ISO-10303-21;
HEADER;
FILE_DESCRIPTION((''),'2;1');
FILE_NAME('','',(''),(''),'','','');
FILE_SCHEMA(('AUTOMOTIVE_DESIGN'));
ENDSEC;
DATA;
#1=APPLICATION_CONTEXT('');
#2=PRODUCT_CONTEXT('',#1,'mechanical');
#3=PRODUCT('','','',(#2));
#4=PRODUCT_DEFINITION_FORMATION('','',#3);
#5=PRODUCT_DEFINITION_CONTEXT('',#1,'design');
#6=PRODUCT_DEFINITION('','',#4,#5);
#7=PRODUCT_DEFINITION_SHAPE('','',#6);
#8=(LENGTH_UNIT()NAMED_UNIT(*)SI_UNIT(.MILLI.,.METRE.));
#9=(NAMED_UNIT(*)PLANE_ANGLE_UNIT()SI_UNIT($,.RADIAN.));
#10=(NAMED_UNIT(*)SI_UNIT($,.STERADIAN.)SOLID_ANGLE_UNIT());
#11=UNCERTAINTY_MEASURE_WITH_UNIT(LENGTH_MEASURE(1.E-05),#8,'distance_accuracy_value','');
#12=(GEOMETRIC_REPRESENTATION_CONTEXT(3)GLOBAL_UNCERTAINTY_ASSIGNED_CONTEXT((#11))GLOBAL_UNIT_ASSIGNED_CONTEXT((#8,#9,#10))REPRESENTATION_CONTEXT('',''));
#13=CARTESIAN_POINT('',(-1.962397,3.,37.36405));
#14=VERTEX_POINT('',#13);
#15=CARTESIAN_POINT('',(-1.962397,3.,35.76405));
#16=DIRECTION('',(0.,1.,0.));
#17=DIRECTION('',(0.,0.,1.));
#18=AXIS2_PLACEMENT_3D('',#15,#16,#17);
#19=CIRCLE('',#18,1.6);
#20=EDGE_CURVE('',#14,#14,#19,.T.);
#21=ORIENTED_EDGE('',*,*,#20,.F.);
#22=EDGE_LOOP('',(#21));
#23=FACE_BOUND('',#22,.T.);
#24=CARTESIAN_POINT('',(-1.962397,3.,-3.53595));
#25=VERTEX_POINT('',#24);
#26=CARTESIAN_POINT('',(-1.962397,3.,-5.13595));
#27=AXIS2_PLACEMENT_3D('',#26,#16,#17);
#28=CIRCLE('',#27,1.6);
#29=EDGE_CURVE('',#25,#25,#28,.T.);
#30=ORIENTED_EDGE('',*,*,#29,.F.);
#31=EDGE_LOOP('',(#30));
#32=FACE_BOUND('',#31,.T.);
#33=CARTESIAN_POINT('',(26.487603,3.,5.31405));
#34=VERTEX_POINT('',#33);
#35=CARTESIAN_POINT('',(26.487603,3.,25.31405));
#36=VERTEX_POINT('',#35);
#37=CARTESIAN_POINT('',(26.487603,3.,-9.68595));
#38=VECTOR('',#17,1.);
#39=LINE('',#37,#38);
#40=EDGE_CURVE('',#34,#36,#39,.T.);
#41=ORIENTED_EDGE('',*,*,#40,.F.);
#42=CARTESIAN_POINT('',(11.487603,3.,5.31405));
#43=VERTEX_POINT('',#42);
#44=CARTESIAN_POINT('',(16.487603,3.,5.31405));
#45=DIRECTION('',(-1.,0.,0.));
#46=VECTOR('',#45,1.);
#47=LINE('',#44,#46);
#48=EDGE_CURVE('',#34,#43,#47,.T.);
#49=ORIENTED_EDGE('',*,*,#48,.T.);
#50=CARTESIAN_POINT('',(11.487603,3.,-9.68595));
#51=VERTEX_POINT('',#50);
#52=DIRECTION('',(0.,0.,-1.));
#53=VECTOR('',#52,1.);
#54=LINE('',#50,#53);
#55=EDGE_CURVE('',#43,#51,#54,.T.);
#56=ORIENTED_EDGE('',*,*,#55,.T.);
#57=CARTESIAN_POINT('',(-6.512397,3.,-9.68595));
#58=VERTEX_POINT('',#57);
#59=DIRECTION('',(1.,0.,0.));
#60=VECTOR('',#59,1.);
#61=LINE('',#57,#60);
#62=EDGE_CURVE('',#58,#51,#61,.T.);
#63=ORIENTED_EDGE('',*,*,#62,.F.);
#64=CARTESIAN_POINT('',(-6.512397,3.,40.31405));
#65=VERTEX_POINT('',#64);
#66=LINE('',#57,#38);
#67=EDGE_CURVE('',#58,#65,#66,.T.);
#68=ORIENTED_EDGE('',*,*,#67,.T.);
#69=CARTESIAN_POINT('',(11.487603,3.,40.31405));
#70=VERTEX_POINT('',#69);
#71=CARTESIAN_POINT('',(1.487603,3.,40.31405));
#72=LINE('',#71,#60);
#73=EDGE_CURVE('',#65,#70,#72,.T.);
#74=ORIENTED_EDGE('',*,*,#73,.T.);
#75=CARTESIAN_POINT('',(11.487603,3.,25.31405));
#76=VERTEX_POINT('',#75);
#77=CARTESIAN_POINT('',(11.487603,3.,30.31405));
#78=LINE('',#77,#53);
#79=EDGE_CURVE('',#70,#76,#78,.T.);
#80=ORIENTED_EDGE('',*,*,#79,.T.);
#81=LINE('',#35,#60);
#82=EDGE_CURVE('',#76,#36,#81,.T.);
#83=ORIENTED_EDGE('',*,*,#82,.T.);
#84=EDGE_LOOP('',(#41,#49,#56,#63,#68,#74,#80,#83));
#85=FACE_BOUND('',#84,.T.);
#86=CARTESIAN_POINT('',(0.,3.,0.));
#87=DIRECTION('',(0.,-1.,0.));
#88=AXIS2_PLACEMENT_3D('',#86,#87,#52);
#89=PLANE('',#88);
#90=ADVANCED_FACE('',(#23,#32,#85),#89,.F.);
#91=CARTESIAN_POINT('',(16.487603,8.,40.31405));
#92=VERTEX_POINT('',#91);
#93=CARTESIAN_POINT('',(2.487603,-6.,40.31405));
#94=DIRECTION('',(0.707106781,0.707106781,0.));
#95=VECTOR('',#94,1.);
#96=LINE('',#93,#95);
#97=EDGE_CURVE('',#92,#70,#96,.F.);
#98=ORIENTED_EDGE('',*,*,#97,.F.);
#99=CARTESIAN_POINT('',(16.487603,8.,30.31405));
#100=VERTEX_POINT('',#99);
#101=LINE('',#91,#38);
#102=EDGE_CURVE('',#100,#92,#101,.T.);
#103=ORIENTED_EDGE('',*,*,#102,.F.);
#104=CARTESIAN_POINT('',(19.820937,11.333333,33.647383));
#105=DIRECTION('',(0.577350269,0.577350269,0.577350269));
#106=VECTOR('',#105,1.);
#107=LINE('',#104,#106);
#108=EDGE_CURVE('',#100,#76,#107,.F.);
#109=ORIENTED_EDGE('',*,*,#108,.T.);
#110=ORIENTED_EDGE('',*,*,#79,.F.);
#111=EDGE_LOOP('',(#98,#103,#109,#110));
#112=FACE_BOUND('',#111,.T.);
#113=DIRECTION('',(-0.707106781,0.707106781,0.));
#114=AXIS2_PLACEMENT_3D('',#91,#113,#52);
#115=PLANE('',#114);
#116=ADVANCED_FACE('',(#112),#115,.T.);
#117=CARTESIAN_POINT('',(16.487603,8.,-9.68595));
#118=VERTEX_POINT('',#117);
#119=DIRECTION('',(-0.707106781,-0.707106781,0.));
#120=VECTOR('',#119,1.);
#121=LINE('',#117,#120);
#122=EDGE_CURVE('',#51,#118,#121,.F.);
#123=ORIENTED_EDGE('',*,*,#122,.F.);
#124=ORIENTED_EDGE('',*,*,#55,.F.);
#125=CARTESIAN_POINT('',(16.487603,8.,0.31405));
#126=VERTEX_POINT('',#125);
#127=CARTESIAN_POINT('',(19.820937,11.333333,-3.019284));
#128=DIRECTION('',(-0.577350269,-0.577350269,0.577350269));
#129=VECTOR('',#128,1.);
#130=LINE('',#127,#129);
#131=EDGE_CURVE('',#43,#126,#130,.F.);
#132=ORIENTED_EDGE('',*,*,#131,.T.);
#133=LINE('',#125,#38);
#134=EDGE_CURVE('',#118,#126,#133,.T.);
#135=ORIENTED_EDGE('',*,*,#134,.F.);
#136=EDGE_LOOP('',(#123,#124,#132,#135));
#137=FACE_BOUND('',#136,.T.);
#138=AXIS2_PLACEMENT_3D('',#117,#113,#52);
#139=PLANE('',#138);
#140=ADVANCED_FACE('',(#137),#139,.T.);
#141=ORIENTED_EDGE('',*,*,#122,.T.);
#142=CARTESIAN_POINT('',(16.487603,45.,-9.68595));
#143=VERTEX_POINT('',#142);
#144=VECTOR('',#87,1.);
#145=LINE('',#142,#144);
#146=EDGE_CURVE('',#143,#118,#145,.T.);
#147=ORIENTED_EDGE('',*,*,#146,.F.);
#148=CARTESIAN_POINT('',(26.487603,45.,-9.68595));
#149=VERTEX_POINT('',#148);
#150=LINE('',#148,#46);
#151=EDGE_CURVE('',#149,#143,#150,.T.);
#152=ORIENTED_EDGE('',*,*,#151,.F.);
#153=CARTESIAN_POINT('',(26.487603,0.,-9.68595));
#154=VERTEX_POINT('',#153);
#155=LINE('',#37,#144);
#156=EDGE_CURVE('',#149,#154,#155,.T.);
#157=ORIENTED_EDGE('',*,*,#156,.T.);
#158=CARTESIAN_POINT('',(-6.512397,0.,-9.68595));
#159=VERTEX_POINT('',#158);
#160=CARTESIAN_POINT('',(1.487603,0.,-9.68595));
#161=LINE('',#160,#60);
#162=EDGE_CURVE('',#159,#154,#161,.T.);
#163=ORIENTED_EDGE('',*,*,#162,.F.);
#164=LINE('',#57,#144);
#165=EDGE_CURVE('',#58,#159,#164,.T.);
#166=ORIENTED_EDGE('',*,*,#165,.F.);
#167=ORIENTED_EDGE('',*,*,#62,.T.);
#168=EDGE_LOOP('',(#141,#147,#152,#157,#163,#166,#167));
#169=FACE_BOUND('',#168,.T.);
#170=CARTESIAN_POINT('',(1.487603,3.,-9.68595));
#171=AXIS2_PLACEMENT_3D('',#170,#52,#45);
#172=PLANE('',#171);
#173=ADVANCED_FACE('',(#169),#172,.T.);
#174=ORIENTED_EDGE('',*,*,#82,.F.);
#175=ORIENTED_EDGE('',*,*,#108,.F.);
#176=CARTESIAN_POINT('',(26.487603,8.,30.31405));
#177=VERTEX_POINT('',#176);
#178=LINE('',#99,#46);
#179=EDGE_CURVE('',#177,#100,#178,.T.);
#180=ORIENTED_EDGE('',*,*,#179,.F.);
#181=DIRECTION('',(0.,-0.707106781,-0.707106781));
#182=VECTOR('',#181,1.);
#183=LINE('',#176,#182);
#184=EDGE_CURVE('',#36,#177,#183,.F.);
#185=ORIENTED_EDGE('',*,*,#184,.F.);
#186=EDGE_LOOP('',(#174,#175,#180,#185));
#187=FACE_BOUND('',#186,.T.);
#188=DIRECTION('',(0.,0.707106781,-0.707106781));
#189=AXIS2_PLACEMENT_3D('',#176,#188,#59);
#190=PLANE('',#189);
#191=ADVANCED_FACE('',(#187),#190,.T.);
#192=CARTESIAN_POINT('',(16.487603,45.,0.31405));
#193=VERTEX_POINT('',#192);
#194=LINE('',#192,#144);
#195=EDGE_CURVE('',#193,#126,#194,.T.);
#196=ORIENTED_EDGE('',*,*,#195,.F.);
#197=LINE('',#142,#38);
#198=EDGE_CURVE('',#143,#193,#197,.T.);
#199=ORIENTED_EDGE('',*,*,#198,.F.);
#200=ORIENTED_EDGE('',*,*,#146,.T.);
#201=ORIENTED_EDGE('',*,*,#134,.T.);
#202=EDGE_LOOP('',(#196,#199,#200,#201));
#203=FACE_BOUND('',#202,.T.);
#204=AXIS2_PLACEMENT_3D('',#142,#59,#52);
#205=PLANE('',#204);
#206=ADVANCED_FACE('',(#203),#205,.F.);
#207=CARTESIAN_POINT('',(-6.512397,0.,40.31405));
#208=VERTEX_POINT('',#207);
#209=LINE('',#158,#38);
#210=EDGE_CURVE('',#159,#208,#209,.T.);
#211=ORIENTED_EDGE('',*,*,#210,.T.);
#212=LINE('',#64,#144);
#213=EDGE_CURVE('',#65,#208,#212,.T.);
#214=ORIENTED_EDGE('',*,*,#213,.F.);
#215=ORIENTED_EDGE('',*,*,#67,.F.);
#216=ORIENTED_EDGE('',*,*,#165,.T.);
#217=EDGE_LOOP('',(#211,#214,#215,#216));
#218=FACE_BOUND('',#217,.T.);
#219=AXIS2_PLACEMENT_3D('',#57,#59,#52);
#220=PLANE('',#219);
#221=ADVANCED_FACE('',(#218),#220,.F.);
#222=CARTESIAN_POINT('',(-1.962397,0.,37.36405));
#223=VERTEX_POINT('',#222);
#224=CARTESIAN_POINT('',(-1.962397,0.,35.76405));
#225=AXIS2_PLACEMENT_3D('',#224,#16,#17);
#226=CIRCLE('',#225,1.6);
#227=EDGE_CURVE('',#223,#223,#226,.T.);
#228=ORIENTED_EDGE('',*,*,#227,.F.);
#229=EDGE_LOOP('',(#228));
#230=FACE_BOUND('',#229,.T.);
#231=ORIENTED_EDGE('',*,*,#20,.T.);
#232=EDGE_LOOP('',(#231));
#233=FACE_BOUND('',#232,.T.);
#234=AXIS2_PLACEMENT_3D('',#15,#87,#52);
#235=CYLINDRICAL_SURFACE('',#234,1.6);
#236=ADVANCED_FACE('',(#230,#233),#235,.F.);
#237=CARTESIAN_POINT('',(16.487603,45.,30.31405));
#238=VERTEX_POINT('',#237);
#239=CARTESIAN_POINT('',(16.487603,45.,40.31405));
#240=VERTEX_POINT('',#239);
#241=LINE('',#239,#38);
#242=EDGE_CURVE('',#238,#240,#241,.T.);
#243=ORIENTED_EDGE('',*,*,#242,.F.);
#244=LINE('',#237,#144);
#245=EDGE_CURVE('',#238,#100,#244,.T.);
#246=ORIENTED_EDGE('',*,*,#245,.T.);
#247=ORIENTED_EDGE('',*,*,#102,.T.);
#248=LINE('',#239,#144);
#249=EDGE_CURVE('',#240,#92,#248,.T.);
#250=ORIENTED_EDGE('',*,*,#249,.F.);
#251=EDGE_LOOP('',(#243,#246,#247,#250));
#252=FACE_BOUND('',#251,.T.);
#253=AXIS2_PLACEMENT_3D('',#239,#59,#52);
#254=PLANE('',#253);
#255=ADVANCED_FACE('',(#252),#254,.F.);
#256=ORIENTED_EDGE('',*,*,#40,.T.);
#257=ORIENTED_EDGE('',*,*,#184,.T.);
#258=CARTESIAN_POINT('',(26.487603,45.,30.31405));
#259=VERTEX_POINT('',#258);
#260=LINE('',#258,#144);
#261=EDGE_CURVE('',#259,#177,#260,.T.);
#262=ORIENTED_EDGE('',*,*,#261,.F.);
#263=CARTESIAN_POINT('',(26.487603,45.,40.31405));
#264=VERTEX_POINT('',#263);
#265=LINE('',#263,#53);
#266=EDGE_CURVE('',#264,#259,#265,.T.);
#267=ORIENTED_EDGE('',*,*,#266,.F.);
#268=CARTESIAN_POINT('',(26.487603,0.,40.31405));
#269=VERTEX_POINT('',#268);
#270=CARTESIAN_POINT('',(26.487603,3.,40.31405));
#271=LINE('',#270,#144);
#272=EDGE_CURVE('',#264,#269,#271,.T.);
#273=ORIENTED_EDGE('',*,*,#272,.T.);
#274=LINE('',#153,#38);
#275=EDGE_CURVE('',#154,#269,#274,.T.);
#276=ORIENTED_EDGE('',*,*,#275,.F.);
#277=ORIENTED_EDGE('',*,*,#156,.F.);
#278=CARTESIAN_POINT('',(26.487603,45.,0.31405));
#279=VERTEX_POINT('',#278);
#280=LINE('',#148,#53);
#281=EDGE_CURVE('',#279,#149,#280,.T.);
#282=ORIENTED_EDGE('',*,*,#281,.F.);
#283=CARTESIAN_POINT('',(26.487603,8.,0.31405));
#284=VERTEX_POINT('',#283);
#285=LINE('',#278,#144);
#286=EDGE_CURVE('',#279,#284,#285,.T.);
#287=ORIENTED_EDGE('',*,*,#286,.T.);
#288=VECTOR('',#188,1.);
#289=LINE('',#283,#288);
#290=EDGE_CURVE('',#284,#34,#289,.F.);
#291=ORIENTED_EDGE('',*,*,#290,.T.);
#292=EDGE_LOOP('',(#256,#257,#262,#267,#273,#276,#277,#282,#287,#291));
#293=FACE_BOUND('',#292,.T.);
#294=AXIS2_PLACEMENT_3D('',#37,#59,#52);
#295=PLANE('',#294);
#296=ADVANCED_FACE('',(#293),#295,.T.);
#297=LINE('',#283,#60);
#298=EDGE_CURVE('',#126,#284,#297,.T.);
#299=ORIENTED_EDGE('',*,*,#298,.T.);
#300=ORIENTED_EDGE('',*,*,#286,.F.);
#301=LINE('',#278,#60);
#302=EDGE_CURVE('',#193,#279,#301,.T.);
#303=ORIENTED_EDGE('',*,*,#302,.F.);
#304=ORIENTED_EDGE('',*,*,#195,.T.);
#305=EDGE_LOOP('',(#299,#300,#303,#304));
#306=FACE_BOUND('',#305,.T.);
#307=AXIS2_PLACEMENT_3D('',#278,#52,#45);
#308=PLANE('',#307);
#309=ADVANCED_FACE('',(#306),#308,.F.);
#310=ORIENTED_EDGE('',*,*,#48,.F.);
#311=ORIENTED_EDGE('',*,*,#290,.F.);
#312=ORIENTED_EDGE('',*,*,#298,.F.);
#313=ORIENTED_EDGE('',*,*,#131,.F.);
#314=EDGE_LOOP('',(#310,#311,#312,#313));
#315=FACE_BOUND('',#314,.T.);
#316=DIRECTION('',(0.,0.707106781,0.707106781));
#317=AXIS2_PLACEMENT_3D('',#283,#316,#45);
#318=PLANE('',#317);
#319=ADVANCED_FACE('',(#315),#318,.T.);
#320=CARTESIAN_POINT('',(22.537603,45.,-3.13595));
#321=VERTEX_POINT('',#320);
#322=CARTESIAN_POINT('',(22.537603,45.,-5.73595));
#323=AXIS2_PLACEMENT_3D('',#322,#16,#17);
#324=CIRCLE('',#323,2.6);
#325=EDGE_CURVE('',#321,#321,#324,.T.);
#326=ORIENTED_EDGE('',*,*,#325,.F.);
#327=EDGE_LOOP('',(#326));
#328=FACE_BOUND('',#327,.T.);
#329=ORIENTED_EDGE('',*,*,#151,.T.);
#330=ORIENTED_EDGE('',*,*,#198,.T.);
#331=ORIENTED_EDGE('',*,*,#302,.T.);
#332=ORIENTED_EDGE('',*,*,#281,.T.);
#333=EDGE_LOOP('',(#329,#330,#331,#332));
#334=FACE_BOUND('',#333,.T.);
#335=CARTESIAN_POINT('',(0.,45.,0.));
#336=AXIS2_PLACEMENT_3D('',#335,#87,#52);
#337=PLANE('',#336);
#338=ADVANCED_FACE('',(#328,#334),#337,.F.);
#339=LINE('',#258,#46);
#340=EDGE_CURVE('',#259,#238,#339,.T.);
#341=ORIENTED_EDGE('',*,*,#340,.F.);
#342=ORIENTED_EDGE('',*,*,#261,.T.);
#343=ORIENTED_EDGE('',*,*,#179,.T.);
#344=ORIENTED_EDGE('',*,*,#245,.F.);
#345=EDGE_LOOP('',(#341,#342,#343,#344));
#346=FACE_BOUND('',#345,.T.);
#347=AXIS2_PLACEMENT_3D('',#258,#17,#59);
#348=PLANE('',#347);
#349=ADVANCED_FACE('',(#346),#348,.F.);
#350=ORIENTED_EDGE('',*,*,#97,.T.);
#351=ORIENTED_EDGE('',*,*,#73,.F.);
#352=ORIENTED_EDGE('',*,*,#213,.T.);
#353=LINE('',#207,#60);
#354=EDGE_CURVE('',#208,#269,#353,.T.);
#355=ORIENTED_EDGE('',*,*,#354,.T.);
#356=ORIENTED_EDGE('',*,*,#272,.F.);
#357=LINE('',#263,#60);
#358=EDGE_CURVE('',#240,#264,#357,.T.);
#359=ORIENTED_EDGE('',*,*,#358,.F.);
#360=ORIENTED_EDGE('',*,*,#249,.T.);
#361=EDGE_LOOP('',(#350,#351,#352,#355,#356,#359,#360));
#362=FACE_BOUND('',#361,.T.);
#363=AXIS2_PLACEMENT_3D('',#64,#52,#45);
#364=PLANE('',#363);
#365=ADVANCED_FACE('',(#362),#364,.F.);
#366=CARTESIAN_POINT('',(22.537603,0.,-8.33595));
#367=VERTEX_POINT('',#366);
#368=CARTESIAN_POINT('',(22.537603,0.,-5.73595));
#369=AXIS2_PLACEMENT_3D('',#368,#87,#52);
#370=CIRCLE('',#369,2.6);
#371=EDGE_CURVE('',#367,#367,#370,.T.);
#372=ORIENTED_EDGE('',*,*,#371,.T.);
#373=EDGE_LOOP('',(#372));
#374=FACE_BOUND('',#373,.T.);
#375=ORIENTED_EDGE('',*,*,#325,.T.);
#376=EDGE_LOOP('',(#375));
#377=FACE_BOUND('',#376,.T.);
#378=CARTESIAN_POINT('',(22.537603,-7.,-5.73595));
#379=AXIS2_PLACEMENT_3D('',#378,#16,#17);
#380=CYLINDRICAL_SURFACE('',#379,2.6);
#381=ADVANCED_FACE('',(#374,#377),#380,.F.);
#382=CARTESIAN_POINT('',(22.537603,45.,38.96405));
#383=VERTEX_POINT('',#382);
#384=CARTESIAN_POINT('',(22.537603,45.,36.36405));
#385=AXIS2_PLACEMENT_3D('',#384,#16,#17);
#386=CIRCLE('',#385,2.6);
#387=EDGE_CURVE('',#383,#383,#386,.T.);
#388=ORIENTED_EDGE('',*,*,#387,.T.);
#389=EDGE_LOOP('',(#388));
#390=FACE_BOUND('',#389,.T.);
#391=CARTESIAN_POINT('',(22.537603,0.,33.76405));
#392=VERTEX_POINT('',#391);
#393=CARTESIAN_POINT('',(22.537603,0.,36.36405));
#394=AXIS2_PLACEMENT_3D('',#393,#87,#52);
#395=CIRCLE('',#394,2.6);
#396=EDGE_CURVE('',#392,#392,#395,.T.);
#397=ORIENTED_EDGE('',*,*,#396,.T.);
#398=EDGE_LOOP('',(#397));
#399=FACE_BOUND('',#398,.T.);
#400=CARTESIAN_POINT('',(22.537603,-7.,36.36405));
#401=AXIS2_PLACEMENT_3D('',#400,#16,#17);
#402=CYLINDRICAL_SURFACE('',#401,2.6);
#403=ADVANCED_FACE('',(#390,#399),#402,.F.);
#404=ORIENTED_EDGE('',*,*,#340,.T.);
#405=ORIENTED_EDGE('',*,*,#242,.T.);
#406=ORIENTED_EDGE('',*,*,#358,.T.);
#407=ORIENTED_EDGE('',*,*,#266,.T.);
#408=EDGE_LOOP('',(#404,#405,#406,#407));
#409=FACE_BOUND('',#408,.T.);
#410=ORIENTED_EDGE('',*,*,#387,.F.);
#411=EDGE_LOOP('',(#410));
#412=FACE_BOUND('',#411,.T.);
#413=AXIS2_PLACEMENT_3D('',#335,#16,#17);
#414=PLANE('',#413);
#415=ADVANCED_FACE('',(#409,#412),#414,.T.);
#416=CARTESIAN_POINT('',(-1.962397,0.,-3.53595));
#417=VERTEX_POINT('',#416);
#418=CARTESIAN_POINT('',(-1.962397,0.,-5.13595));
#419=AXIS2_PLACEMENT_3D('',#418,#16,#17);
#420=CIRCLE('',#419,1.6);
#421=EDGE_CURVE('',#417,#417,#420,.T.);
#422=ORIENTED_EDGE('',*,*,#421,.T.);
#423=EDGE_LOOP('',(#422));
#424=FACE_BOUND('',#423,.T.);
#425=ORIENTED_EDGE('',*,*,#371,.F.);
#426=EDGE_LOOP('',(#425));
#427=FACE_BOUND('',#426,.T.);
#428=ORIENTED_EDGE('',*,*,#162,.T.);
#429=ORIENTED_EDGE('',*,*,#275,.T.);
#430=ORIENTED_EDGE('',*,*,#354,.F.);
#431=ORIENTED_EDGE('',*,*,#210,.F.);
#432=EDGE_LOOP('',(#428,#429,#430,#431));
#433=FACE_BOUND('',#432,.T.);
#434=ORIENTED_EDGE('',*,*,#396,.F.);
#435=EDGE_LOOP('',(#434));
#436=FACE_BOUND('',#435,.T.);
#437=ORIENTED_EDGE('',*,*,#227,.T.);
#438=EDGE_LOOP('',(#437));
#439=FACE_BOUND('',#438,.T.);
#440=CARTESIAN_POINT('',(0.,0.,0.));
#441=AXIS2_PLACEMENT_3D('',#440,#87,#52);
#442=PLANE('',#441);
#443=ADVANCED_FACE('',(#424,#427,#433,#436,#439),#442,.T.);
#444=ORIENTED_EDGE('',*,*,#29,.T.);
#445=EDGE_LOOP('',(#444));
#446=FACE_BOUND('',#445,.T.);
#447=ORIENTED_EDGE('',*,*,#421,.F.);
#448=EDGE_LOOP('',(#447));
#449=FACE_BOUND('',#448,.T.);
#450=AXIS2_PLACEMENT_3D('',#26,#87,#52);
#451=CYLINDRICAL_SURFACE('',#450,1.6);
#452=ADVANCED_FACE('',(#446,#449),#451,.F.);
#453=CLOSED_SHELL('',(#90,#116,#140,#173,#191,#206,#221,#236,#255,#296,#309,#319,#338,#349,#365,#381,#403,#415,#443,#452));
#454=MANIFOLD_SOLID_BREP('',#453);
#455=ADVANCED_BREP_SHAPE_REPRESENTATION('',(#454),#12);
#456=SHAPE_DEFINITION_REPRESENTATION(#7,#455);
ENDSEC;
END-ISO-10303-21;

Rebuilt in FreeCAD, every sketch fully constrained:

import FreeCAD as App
import Part
import Sketcher


def edges_at(feature, points):
    """Names of the edges that pass closest to the given points."""
    edges = feature.Shape.Edges
    near = lambda p: min(range(len(edges)), key=lambda i: edges[i].distToShape(Part.Vertex(*p))[0])
    return sorted({f"Edge{near(p) + 1}" for p in points})


def add_polygon(sketch, points):
    """Adds a closed chain of lines whose ends are joined by coincident constraints."""
    first, n = sketch.GeometryCount, len(points)
    for a, b in zip(points, points[1:] + points[:1]):
        sketch.addGeometry(Part.LineSegment(App.Vector(*a, 0), App.Vector(*b, 0)), False)
    for i in range(n):
        sketch.addConstraint(Sketcher.Constraint("Coincident", first + i, 2, first + (i + 1) % n, 1))

doc = App.newDocument("Part")
body = doc.addObject("PartDesign::Body", "Body")

# Sketch on XZ plane
sketch1 = body.newObject("Sketcher::SketchObject", "Sketch")
sketch1.AttachmentSupport = (doc.getObject("XZ_Plane"), [""])
sketch1.MapMode = "FlatFace"
add_polygon(sketch1, [(26.5, -9.7), (-6.5, -9.7), (-6.5, 40.3), (26.5, 40.3)])  # lines 0-3
sketch1.addGeometry(Part.Circle(App.Vector(-2, 35.8, 0), App.Vector(0, 0, 1), 1.6), False)  # 4
sketch1.addGeometry(Part.Circle(App.Vector(-2, -5.1, 0), App.Vector(0, 0, 1), 1.6), False)  # 5
sketch1.addConstraint(Sketcher.Constraint("Horizontal", 0))
sketch1.addConstraint(Sketcher.Constraint("Vertical", 1))
sketch1.addConstraint(Sketcher.Constraint("Horizontal", 2))
sketch1.addConstraint(Sketcher.Constraint("Vertical", 3))
sketch1.addConstraint(Sketcher.Constraint("Equal", 4, 5))
sketch1.addConstraint(Sketcher.Constraint("Vertical", 4, 3, 5, 3))
sketch1.addConstraint(Sketcher.Constraint("Diameter", 4, 3.2))
sketch1.addConstraint(Sketcher.Constraint("DistanceX", 0, 2, 0, 1, 33.0))
sketch1.addConstraint(Sketcher.Constraint("DistanceY", 1, 1, 1, 2, 50.0))
sketch1.addConstraint(Sketcher.Constraint("DistanceY", 5, 3, 4, 3, 40.9))
sketch1.addConstraint(Sketcher.Constraint("DistanceX", 0, 2, 5, 3, 4.55))
sketch1.addConstraint(Sketcher.Constraint("DistanceY", 0, 2, 5, 3, 4.55))
sketch1.addConstraint(Sketcher.Constraint("DistanceY", -1, 1, 4, 3, 35.76405))
sketch1.addConstraint(Sketcher.Constraint("DistanceX", 4, 3, -1, 1, 1.962397))
pad1 = body.newObject("PartDesign::Pad", "Pad")
pad1.Profile = sketch1
pad1.Length = 3
pad1.Reversed = True

# Sketch on XZ plane
sketch2 = body.newObject("Sketcher::SketchObject", "Sketch001")
sketch2.AttachmentSupport = (doc.getObject("XZ_Plane"), [""])
sketch2.MapMode = "FlatFace"
sketch2.AttachmentOffset = App.Placement(App.Vector(0, 0, -3), App.Rotation())
add_polygon(sketch2, [(16, 30), (16, 40), (26, 40), (26, 30)])  # lines 0-3
add_polygon(sketch2, [(16, -10), (16, 0), (26, 0), (26, -10)])  # lines 4-7
sketch2.addConstraint(Sketcher.Constraint("Vertical", 0))
sketch2.addConstraint(Sketcher.Constraint("Horizontal", 1))
sketch2.addConstraint(Sketcher.Constraint("Vertical", 2))
sketch2.addConstraint(Sketcher.Constraint("Horizontal", 3))
sketch2.addConstraint(Sketcher.Constraint("Vertical", 4))
sketch2.addConstraint(Sketcher.Constraint("Horizontal", 5))
sketch2.addConstraint(Sketcher.Constraint("Vertical", 6))
sketch2.addConstraint(Sketcher.Constraint("Horizontal", 7))
sketch2.addConstraint(Sketcher.Constraint("Vertical", 3, 2, 4, 2))
sketch2.addConstraint(Sketcher.Constraint("Vertical", 2, 2, 5, 2))
sketch2.addConstraint(Sketcher.Constraint("Equal", 7, 0))
sketch2.addConstraint(Sketcher.Constraint("Equal", 2, 4))
sketch2.addConstraint(Sketcher.Constraint("DistanceX", 1, 1, 1, 2, 10.0))
sketch2.addConstraint(Sketcher.Constraint("DistanceY", 4, 2, 3, 2, 30.0))
sketch2.addConstraint(Sketcher.Constraint("DistanceY", -1, 1, 0, 2, 40.31405))
sketch2.addConstraint(Sketcher.Constraint("DistanceX", -1, 1, 0, 2, 16.487603))
pad2 = body.newObject("PartDesign::Pad", "Pad001")
pad2.Profile = sketch2
pad2.Length = 42
pad2.Reversed = True
doc.recompute()

chamfer = body.newObject("PartDesign::Chamfer", "Chamfer")
chamfer.Base = (pad2, edges_at(pad2, [
    (21.488, 3, 30.314),
    (16.488, 3, 35.314),
    (16.488, 3, -4.686),
    (21.488, 3, 0.314),
]))
chamfer.Size = 5

# Sketch on XZ plane
sketch3 = body.newObject("Sketcher::SketchObject", "Sketch002")
sketch3.AttachmentSupport = (doc.getObject("XZ_Plane"), [""])
sketch3.MapMode = "FlatFace"
sketch3.AttachmentOffset = App.Placement(App.Vector(0, 0, -45), App.Rotation())
sketch3.addGeometry(Part.Circle(App.Vector(22.5, 36.4, 0), App.Vector(0, 0, 1), 2.6), False)
sketch3.addGeometry(Part.Circle(App.Vector(22.5, -5.7, 0), App.Vector(0, 0, 1), 2.6), False)
sketch3.addConstraint(Sketcher.Constraint("Equal", 0, 1))
sketch3.addConstraint(Sketcher.Constraint("Vertical", 0, 3, 1, 3))
sketch3.addConstraint(Sketcher.Constraint("Diameter", 0, 5.2))
sketch3.addConstraint(Sketcher.Constraint("DistanceY", 1, 3, 0, 3, 42.1))
sketch3.addConstraint(Sketcher.Constraint("DistanceY", -1, 1, 0, 3, 36.36405))
sketch3.addConstraint(Sketcher.Constraint("DistanceX", -1, 1, 0, 3, 22.537603))
pocket1 = body.newObject("PartDesign::Pocket", "Pocket")
pocket1.Profile = sketch3
pocket1.Length = 52
pocket1.Reversed = True

doc.recompute()
